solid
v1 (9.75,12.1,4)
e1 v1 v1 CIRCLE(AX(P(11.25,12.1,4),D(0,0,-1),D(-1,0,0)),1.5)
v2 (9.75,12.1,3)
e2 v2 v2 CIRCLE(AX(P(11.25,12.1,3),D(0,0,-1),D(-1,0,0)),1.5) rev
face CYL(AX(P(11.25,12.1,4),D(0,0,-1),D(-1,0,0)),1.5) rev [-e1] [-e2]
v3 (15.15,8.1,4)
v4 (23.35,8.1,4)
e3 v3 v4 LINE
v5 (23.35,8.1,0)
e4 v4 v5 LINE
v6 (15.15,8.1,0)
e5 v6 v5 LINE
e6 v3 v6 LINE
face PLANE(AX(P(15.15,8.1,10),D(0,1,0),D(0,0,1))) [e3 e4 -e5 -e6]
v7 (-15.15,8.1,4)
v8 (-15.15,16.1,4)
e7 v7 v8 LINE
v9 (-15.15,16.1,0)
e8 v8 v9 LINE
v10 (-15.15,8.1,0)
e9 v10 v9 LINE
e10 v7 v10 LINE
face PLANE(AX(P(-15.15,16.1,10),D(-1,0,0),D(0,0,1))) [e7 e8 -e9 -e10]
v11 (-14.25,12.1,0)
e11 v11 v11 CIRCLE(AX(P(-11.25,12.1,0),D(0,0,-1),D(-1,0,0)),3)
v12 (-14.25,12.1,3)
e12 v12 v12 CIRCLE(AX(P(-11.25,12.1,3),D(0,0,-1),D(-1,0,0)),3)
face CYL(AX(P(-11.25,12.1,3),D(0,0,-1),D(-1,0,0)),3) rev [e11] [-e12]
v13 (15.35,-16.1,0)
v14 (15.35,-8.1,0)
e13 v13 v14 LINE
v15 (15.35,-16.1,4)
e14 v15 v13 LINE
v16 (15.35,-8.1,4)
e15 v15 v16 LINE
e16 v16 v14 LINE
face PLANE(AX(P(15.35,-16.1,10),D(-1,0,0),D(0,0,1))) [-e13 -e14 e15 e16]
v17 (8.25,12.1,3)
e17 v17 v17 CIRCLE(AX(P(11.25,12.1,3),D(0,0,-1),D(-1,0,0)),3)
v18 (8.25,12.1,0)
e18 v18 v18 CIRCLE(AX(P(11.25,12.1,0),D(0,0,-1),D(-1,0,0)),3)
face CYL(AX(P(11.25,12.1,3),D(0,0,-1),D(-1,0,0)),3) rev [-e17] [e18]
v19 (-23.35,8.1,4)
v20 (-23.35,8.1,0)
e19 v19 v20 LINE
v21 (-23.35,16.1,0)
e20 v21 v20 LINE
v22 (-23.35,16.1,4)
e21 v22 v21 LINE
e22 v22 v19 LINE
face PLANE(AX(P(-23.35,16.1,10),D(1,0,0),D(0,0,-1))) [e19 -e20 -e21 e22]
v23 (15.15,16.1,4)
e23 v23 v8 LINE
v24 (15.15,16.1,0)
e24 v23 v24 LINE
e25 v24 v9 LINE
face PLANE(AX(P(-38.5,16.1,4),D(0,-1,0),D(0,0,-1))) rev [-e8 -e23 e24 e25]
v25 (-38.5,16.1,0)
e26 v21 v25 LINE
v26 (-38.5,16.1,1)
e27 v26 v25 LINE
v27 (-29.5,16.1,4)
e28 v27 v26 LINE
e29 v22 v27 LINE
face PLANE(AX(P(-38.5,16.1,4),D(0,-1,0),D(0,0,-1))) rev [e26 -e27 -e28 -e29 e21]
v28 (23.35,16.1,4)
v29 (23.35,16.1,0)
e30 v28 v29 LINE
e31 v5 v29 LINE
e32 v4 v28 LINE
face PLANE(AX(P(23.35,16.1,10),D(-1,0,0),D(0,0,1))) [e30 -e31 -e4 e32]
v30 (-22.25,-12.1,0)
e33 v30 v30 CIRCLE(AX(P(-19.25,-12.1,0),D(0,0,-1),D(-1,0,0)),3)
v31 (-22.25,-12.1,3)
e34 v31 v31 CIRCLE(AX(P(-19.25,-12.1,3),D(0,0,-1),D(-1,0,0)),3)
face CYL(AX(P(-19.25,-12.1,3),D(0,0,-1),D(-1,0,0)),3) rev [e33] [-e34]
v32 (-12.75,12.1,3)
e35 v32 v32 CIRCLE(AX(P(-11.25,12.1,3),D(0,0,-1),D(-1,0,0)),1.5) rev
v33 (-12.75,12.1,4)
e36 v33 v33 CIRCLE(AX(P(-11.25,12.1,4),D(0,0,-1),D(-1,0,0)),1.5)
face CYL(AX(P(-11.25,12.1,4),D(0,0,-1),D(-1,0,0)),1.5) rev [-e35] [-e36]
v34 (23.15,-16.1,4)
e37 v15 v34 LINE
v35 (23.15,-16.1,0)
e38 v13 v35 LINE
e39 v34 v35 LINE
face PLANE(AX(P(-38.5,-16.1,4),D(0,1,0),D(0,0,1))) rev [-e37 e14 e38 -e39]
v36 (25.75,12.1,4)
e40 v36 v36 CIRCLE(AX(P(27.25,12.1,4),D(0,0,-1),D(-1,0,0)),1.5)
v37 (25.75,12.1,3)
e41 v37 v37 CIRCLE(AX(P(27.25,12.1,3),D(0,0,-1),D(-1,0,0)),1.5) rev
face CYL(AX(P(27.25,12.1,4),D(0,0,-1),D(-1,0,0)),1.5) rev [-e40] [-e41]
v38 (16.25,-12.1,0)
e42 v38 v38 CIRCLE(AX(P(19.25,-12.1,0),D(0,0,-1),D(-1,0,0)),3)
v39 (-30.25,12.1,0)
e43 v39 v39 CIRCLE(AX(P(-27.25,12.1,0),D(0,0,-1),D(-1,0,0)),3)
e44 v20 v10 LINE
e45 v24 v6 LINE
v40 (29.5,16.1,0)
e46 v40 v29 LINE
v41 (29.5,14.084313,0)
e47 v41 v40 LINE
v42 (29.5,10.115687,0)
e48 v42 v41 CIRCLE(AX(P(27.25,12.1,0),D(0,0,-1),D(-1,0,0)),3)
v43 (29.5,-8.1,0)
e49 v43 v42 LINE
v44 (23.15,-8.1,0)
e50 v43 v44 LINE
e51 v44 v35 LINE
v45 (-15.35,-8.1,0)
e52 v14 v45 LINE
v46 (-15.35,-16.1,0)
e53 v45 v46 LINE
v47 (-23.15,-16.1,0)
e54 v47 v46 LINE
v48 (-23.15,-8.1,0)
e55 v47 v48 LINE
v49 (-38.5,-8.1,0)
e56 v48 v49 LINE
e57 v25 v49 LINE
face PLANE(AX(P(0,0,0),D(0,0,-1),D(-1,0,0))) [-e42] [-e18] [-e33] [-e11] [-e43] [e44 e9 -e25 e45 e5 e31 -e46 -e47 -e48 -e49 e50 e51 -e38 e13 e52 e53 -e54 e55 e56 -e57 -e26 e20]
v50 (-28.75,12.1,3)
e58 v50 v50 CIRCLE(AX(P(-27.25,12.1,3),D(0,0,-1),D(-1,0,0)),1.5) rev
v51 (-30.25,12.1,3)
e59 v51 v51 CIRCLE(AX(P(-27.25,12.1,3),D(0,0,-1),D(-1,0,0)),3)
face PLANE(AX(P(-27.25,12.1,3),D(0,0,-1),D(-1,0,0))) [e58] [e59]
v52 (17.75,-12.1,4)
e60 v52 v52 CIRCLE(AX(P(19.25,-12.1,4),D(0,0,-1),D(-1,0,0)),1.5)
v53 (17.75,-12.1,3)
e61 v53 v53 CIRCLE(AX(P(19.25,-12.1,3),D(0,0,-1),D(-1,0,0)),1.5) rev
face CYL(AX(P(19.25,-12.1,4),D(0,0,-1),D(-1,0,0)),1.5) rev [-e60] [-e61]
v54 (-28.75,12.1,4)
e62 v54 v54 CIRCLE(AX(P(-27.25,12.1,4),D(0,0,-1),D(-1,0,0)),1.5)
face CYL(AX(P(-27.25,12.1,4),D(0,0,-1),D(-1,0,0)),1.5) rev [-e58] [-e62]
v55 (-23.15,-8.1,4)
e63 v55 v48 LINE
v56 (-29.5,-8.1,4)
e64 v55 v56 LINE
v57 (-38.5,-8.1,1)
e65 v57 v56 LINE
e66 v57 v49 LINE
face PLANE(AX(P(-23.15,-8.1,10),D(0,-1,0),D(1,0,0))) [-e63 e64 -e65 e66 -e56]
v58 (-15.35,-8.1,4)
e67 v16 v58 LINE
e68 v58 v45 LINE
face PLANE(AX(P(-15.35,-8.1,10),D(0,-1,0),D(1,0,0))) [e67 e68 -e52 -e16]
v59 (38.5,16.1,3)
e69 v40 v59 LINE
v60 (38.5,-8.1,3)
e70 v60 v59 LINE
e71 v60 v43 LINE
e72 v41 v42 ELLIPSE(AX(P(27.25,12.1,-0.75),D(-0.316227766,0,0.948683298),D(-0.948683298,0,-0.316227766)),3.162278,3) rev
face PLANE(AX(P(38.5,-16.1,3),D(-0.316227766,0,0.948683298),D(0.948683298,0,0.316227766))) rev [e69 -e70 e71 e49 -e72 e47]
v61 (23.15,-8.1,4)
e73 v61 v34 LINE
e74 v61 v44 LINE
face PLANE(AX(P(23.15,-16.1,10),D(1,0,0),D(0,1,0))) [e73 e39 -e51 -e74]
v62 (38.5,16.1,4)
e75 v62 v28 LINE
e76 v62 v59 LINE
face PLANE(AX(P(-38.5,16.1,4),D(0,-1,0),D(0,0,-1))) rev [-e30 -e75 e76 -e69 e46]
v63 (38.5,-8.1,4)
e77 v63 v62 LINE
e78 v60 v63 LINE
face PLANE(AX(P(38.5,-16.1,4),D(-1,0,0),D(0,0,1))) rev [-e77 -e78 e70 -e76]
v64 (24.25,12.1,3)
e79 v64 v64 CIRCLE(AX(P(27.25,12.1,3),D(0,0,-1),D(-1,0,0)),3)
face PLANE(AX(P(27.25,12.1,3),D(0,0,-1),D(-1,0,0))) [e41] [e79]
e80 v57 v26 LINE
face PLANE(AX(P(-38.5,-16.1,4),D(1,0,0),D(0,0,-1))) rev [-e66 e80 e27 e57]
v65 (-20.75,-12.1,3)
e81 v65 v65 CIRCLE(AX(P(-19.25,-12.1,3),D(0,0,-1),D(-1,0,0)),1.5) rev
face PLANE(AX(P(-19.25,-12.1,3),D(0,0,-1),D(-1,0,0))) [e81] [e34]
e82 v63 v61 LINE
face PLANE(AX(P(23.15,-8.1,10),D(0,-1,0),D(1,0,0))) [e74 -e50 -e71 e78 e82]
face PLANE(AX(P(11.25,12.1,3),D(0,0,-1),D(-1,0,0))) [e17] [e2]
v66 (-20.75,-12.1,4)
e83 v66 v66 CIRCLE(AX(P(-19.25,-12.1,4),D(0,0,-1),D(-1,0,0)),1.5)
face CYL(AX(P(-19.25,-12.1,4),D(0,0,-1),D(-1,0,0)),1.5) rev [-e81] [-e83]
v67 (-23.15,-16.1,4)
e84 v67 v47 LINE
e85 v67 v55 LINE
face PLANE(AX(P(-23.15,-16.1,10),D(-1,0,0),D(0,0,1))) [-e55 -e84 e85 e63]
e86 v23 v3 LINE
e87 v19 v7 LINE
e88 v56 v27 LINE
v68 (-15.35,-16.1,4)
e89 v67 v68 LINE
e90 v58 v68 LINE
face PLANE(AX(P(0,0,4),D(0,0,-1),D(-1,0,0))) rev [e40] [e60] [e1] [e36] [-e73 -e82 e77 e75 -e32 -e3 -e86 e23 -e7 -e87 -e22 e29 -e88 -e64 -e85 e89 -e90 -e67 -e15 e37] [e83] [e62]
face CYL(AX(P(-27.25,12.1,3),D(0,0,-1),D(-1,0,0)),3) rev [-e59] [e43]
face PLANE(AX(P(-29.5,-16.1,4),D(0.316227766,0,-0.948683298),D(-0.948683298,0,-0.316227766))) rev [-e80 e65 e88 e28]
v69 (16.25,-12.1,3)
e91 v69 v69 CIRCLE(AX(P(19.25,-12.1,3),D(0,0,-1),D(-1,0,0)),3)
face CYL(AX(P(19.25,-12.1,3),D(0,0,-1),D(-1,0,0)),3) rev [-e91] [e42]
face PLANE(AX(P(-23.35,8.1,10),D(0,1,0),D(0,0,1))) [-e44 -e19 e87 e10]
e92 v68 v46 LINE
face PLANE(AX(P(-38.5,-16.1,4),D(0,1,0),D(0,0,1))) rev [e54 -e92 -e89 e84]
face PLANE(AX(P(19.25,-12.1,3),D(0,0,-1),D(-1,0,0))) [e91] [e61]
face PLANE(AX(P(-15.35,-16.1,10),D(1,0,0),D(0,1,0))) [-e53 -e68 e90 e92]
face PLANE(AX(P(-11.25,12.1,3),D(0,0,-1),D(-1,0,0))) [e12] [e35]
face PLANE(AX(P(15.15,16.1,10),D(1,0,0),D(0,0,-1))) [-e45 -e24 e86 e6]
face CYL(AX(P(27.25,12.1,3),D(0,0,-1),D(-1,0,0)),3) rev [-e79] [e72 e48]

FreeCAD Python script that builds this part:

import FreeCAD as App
import Part
import Sketcher
Q = App.Units.Quantity

doc = App.newDocument("Part")
body = doc.addObject("PartDesign::Body", "Body")

# Sketch on XY plane
sketch1 = body.newObject("Sketcher::SketchObject", "Sketch")
sketch1.AttachmentSupport = (doc.getObject("XY_Plane"), [""])
sketch1.MapMode = "FlatFace"
sketch1.addGeometry([
    Part.LineSegment(App.Vector(-38, 16, 0), App.Vector(-38, -16, 0)),
    Part.LineSegment(App.Vector(-38, -16, 0), App.Vector(38, -16, 0)),
    Part.LineSegment(App.Vector(38, -16, 0), App.Vector(38, 16, 0)),
    Part.LineSegment(App.Vector(38, 16, 0), App.Vector(-38, 16, 0)),
], False)
sketch1.addConstraint([
    Sketcher.Constraint("Coincident", 0, 2, 1, 1),
    Sketcher.Constraint("Coincident", 1, 2, 2, 1),
    Sketcher.Constraint("Coincident", 2, 2, 3, 1),
    Sketcher.Constraint("Coincident", 3, 2, 0, 1),
    Sketcher.Constraint("Vertical", 0),
    Sketcher.Constraint("Horizontal", 1),
    Sketcher.Constraint("Vertical", 2),
    Sketcher.Constraint("Horizontal", 3),
    Sketcher.Constraint("Symmetric", 0, 2, 2, 2, -1, 1),
    Sketcher.Constraint("DistanceX", 1, 1, 1, 2, Q("77 mm")),
    Sketcher.Constraint("DistanceY", 0, 2, 0, 1, Q("32.2 mm")),
])
pad1 = body.newObject("PartDesign::Pad", "Pad")
pad1.Profile = sketch1
pad1.Length = 4

# Sketch on XY plane
sketch2 = body.newObject("Sketcher::SketchObject", "Sketch001")
sketch2.AttachmentSupport = (doc.getObject("XY_Plane"), [""])
sketch2.MapMode = "FlatFace"
sketch2.addGeometry([
    Part.Circle(App.Vector(27.2, 12.1, 0), App.Vector(0, 0, 1), 1.5),
    Part.Circle(App.Vector(19.2, 12.1, 0), App.Vector(0, 0, 1), 1.5),
    Part.Circle(App.Vector(11.2, 12.1, 0), App.Vector(0, 0, 1), 1.5),
], False)
sketch2.addConstraint([
    Sketcher.Constraint("Equal", 0, 1),
    Sketcher.Constraint("Equal", 1, 2),
    Sketcher.Constraint("Horizontal", 0, 3, 1, 3),
    Sketcher.Constraint("Horizontal", 1, 3, 2, 3),
    Sketcher.Constraint("Diameter", 0, Q("3 mm")),
    Sketcher.Constraint("DistanceX", 1, 3, 0, 3, Q("8 mm")),
    Sketcher.Constraint("DistanceX", 2, 3, 1, 3, Q("8 mm")),
    Sketcher.Constraint("DistanceY", -1, 1, 0, 3, Q("12.1 mm")),
    Sketcher.Constraint("DistanceX", -1, 1, 0, 3, Q("27.25 mm")),
])
pocket1 = body.newObject("PartDesign::Pocket", "Pocket")
pocket1.Profile = sketch2
pocket1.Type = "ThroughAll"
pocket1.Reversed = True

# Sketch on XY plane
sketch3 = body.newObject("Sketcher::SketchObject", "Sketch002")
sketch3.AttachmentSupport = (doc.getObject("XY_Plane"), [""])
sketch3.MapMode = "FlatFace"
sketch3.addGeometry([
    Part.Circle(App.Vector(27.2, 12.1, 0), App.Vector(0, 0, 1), 3),
    Part.Circle(App.Vector(19.2, 12.1, 0), App.Vector(0, 0, 1), 3),
    Part.Circle(App.Vector(11.2, 12.1, 0), App.Vector(0, 0, 1), 3),
], False)
sketch3.addConstraint([
    Sketcher.Constraint("Equal", 0, 1),
    Sketcher.Constraint("Equal", 1, 2),
    Sketcher.Constraint("Horizontal", 0, 3, 1, 3),
    Sketcher.Constraint("Horizontal", 1, 3, 2, 3),
    Sketcher.Constraint("Diameter", 0, Q("6 mm")),
    Sketcher.Constraint("DistanceX", 1, 3, 0, 3, Q("8 mm")),
    Sketcher.Constraint("DistanceX", 2, 3, 1, 3, Q("8 mm")),
    Sketcher.Constraint("DistanceY", -1, 1, 0, 3, Q("12.1 mm")),
    Sketcher.Constraint("DistanceX", -1, 1, 0, 3, Q("27.25 mm")),
])
pocket2 = body.newObject("PartDesign::Pocket", "Pocket001")
pocket2.Profile = sketch3
pocket2.Length = 3
pocket2.Reversed = True
doc.recompute()

linearpattern = body.newObject("PartDesign::LinearPattern", "LinearPattern")
linearpattern.Originals = [pocket1, pocket2]
linearpattern.Direction = (doc.getObject("X_Axis"), [""])
linearpattern.Mode = "offset"
linearpattern.Offset = 38.5
linearpattern.Occurrences = 2
linearpattern.Reversed = True
body.Tip = linearpattern
doc.recompute()

linearpattern2 = body.newObject("PartDesign::LinearPattern", "LinearPattern001")
linearpattern2.Originals = [pocket1, pocket2]
linearpattern2.Direction = (doc.getObject("Y_Axis"), [""])
linearpattern2.Mode = "offset"
linearpattern2.Offset = 24.2
linearpattern2.Occurrences = 2
linearpattern2.Reversed = True
body.Tip = linearpattern2

# Sketch on XY plane
sketch4 = body.newObject("Sketcher::SketchObject", "Sketch003")
sketch4.AttachmentSupport = (doc.getObject("XY_Plane"), [""])
sketch4.MapMode = "FlatFace"
sketch4.addGeometry([
    Part.Circle(App.Vector(-11.2, -12.1, 0), App.Vector(0, 0, 1), 1.5),
    Part.Circle(App.Vector(-19.2, -12.1, 0), App.Vector(0, 0, 1), 1.5),
    Part.Circle(App.Vector(-27.2, -12.1, 0), App.Vector(0, 0, 1), 1.5),
], False)
sketch4.addConstraint([
    Sketcher.Constraint("Equal", 0, 1),
    Sketcher.Constraint("Equal", 1, 2),
    Sketcher.Constraint("Horizontal", 0, 3, 1, 3),
    Sketcher.Constraint("Horizontal", 1, 3, 2, 3),
    Sketcher.Constraint("Diameter", 0, Q("3 mm")),
    Sketcher.Constraint("DistanceX", 1, 3, 0, 3, Q("8 mm")),
    Sketcher.Constraint("DistanceX", 2, 3, 1, 3, Q("8 mm")),
    Sketcher.Constraint("DistanceY", 0, 3, -1, 1, Q("12.1 mm")),
    Sketcher.Constraint("DistanceX", 0, 3, -1, 1, Q("11.25 mm")),
])
pocket3 = body.newObject("PartDesign::Pocket", "Pocket002")
pocket3.Profile = sketch4
pocket3.Type = "ThroughAll"
pocket3.Reversed = True

# Sketch on XY plane
sketch5 = body.newObject("Sketcher::SketchObject", "Sketch004")
sketch5.AttachmentSupport = (doc.getObject("XY_Plane"), [""])
sketch5.MapMode = "FlatFace"
sketch5.addGeometry([
    Part.Circle(App.Vector(-11.2, -12.1, 0), App.Vector(0, 0, 1), 3),
    Part.Circle(App.Vector(-19.2, -12.1, 0), App.Vector(0, 0, 1), 3),
    Part.Circle(App.Vector(-27.2, -12.1, 0), App.Vector(0, 0, 1), 3),
], False)
sketch5.addConstraint([
    Sketcher.Constraint("Equal", 0, 1),
    Sketcher.Constraint("Equal", 1, 2),
    Sketcher.Constraint("Horizontal", 0, 3, 1, 3),
    Sketcher.Constraint("Horizontal", 1, 3, 2, 3),
    Sketcher.Constraint("Diameter", 0, Q("6 mm")),
    Sketcher.Constraint("DistanceX", 1, 3, 0, 3, Q("8 mm")),
    Sketcher.Constraint("DistanceX", 2, 3, 1, 3, Q("8 mm")),
    Sketcher.Constraint("DistanceY", 0, 3, -1, 1, Q("12.1 mm")),
    Sketcher.Constraint("DistanceX", 0, 3, -1, 1, Q("11.25 mm")),
])
pocket4 = body.newObject("PartDesign::Pocket", "Pocket003")
pocket4.Profile = sketch5
pocket4.Length = 3
pocket4.Reversed = True

# Sketch on XY plane
sketch6 = body.newObject("Sketcher::SketchObject", "Sketch005")
sketch6.AttachmentSupport = (doc.getObject("XY_Plane"), [""])
sketch6.MapMode = "FlatFace"
sketch6.addGeometry([
    Part.LineSegment(App.Vector(-23, 16, 0), App.Vector(-23, 8, 0)),  # 0
    Part.LineSegment(App.Vector(-23, 8, 0), App.Vector(-15, 8, 0)),  # 1
    Part.LineSegment(App.Vector(-15, 8, 0), App.Vector(-15, 16, 0)),  # 2
    Part.LineSegment(App.Vector(-15, 16, 0), App.Vector(-23, 16, 0)),  # 3
    Part.LineSegment(App.Vector(-38, -8, 0), App.Vector(-38, -16, 0)),  # 4
    Part.LineSegment(App.Vector(-38, -16, 0), App.Vector(-23, -16, 0)),  # 5
    Part.LineSegment(App.Vector(-23, -16, 0), App.Vector(-23, -8, 0)),  # 6
    Part.LineSegment(App.Vector(-23, -8, 0), App.Vector(-38, -8, 0)),  # 7
    Part.LineSegment(App.Vector(-15, -8, 0), App.Vector(-15, -16, 0)),  # 8
    Part.LineSegment(App.Vector(-15, -16, 0), App.Vector(0, -16, 0)),  # 9
    Part.LineSegment(App.Vector(0, -16, 0), App.Vector(0, -8, 0)),  # 10
    Part.LineSegment(App.Vector(0, -8, 0), App.Vector(-15, -8, 0)),  # 11
], False)
sketch6.addConstraint([
    Sketcher.Constraint("Coincident", 0, 2, 1, 1),
    Sketcher.Constraint("Coincident", 1, 2, 2, 1),
    Sketcher.Constraint("Coincident", 2, 2, 3, 1),
    Sketcher.Constraint("Coincident", 3, 2, 0, 1),
    Sketcher.Constraint("Coincident", 4, 2, 5, 1),
    Sketcher.Constraint("Coincident", 5, 2, 6, 1),
    Sketcher.Constraint("Coincident", 6, 2, 7, 1),
    Sketcher.Constraint("Coincident", 7, 2, 4, 1),
    Sketcher.Constraint("Coincident", 8, 2, 9, 1),
    Sketcher.Constraint("Coincident", 9, 2, 10, 1),
    Sketcher.Constraint("Coincident", 10, 2, 11, 1),
    Sketcher.Constraint("Coincident", 11, 2, 8, 1),
    Sketcher.Constraint("Vertical", 0),
    Sketcher.Constraint("Horizontal", 1),
    Sketcher.Constraint("Vertical", 2),
    Sketcher.Constraint("Horizontal", 3),
    Sketcher.Constraint("Vertical", 4),
    Sketcher.Constraint("Horizontal", 5),
    Sketcher.Constraint("Vertical", 6),
    Sketcher.Constraint("Horizontal", 7),
    Sketcher.Constraint("Vertical", 8),
    Sketcher.Constraint("Horizontal", 9),
    Sketcher.Constraint("Vertical", 10),
    Sketcher.Constraint("Horizontal", 11),
    Sketcher.Constraint("PointOnObject", 9, 2, -2),
    Sketcher.Constraint("Horizontal", 5, 2, 8, 2),
    Sketcher.Constraint("Horizontal", 7, 2, 10, 2),
    Sketcher.Constraint("Equal", 7, 9),
    Sketcher.Constraint("Equal", 2, 4),
    Sketcher.Constraint("DistanceY", 0, 2, 0, 1, Q("8 mm")),
    Sketcher.Constraint("DistanceX", 1, 1, 1, 2, Q("8.2 mm")),
    Sketcher.Constraint("DistanceX", 5, 2, 1, 2, Q("8 mm")),
    Sketcher.Constraint("DistanceX", 5, 1, 5, 2, Q("15.35 mm")),
    Sketcher.Constraint("DistanceY", -1, 1, 0, 2, Q("8.1 mm")),
    Sketcher.Constraint("DistanceX", 4, 2, -1, 1, Q("38.5 mm")),
    Sketcher.Constraint("DistanceY", 4, 2, -1, 1, Q("16.1 mm")),
])
pocket5 = body.newObject("PartDesign::Pocket", "Pocket004")
pocket5.Profile = sketch6
pocket5.Length = 10
pocket5.Reversed = True
doc.recompute()

linearpattern3 = body.newObject("PartDesign::LinearPattern", "LinearPattern002")
linearpattern3.Originals = [pocket5]
linearpattern3.Direction = (doc.getObject("X_Axis"), [""])
linearpattern3.Mode = "offset"
linearpattern3.Offset = 38.5
linearpattern3.Occurrences = 2
body.Tip = linearpattern3

# Sketch on XZ plane
sketch7 = body.newObject("Sketcher::SketchObject", "Sketch006")
sketch7.AttachmentSupport = (doc.getObject("XZ_Plane"), [""])
sketch7.MapMode = "FlatFace"
sketch7.AttachmentOffset = App.Placement(App.Vector(0, 0, -16.1), App.Rotation())
sketch7.addGeometry([
    Part.LineSegment(App.Vector(38.5, 0, 0), App.Vector(29.5, 0, 0)),  # 0
    Part.LineSegment(App.Vector(29.5, 0, 0), App.Vector(38.5, 3, 0)),  # 1
    Part.LineSegment(App.Vector(38.5, 3, 0), App.Vector(38.5, 0, 0)),  # 2
    Part.LineSegment(App.Vector(-38.5, 1, 0), App.Vector(-38.5, 4, 0)),  # 3
    Part.LineSegment(App.Vector(-38.5, 4, 0), App.Vector(-29.5, 4, 0)),  # 4
    Part.LineSegment(App.Vector(-29.5, 4, 0), App.Vector(-38.5, 1, 0)),  # 5
], False)
sketch7.addConstraint([
    Sketcher.Constraint("Coincident", 0, 2, 1, 1),
    Sketcher.Constraint("Coincident", 1, 2, 2, 1),
    Sketcher.Constraint("Coincident", 2, 2, 0, 1),
    Sketcher.Constraint("Coincident", 3, 2, 4, 1),
    Sketcher.Constraint("Coincident", 4, 2, 5, 1),
    Sketcher.Constraint("Coincident", 5, 2, 3, 1),
    Sketcher.Constraint("Horizontal", 0),
    Sketcher.Constraint("Vertical", 2),
    Sketcher.Constraint("Vertical", 3),
    Sketcher.Constraint("Horizontal", 4),
    Sketcher.Constraint("PointOnObject", 0, 2, -1),
    Sketcher.Constraint("Parallel", 1, 5),
    Sketcher.Constraint("Equal", 0, 4),
    Sketcher.Constraint("DistanceX", 0, 2, 0, 1, Q("9 mm")),
    Sketcher.Constraint("DistanceY", 2, 2, 2, 1, Q("3 mm")),
    Sketcher.Constraint("DistanceY", -1, 1, 3, 2, Q("4 mm")),
    Sketcher.Constraint("DistanceX", 3, 2, 0, 2, Q("68 mm")),
    Sketcher.Constraint("DistanceX", -1, 1, 0, 2, Q("29.5 mm")),
])
pocket6 = body.newObject("PartDesign::Pocket", "Pocket005")
pocket6.Profile = sketch7
pocket6.Type = "ThroughAll"
pocket6.Reversed = True

doc.recompute()
